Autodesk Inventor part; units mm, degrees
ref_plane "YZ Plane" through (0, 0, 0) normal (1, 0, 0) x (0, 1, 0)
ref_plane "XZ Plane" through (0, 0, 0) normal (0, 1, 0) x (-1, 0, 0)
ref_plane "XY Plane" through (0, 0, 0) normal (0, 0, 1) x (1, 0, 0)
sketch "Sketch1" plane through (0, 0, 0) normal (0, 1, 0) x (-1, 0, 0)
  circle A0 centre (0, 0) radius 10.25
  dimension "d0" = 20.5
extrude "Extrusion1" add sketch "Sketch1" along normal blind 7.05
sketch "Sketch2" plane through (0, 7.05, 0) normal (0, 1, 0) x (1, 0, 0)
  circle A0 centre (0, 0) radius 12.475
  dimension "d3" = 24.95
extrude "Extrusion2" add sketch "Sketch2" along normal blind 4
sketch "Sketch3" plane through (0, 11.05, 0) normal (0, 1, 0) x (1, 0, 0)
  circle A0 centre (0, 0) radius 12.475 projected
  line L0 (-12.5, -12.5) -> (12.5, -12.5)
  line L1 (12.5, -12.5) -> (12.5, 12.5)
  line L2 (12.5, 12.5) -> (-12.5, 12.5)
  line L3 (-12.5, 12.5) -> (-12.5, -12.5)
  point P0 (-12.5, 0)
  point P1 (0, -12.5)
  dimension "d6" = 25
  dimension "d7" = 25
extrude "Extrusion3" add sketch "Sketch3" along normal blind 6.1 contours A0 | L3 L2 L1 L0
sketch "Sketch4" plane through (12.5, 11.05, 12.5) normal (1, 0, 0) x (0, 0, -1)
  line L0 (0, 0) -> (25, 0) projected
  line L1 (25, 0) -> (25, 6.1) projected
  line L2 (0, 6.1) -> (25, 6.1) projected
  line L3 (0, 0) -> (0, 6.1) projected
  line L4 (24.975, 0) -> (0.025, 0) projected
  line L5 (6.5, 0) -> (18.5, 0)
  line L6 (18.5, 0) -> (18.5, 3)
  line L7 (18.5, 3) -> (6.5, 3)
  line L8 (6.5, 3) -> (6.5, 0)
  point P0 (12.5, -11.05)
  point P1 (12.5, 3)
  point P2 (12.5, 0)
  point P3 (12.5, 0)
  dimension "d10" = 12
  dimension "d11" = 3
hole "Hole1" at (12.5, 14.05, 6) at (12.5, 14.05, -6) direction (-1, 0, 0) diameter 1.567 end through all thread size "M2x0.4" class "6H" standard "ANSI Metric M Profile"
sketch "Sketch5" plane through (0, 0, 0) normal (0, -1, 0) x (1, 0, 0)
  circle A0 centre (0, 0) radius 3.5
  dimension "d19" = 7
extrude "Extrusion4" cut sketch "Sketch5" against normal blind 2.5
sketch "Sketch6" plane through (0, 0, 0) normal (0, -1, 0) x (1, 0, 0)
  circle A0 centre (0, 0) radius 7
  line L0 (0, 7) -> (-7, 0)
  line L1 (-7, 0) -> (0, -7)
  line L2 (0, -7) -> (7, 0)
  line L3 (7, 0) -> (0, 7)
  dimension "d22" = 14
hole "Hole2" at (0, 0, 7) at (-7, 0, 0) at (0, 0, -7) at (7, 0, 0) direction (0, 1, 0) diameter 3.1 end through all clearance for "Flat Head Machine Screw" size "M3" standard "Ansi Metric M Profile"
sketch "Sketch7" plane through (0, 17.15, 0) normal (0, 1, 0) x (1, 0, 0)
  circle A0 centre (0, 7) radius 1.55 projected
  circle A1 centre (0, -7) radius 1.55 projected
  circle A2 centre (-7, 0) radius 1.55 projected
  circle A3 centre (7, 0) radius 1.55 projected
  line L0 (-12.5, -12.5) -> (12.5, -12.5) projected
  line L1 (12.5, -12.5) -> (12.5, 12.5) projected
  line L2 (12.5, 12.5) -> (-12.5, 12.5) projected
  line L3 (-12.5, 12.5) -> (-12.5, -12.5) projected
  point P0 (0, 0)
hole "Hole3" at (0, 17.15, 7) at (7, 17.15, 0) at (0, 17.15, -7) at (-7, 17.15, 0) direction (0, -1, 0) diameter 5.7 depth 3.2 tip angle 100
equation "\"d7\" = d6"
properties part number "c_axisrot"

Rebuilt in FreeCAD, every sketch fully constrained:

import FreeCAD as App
import Part
import Sketcher
Q = App.Units.Quantity


def add_polygon(sketch, points):
    """Adds a closed chain of lines whose ends are joined by coincident constraints."""
    first, n = sketch.GeometryCount, len(points)
    for a, b in zip(points, points[1:] + points[:1]):
        sketch.addGeometry(Part.LineSegment(App.Vector(*a, 0), App.Vector(*b, 0)), False)
    for i in range(n):
        sketch.addConstraint(Sketcher.Constraint("Coincident", first + i, 2, first + (i + 1) % n, 1))

doc = App.newDocument("Part")
body = doc.addObject("PartDesign::Body", "Body")

# Sketch on XZ plane
sketch1 = doc.addObject("Sketcher::SketchObject", "Sketch")
body.addObject(sketch1)
sketch1.AttachmentSupport = (doc.XZ_Plane, [""])
sketch1.MapMode = "FlatFace"
sketch1.addGeometry(Part.Circle(App.Vector(0, 0, 0), App.Vector(0, 0, 1), 10.25), False)
sketch1.addConstraint(Sketcher.Constraint("Coincident", 0, 3, -1, 1))
sketch1.addConstraint(Sketcher.Constraint("Diameter", 0, Q("20.5 mm")))
pad1 = doc.addObject("PartDesign::Pad", "Pad")
body.addObject(pad1)
pad1.Profile = sketch1
pad1.Length = 7.05
pad1.Reversed = True

# Sketch on XZ plane
sketch2 = doc.addObject("Sketcher::SketchObject", "Sketch001")
body.addObject(sketch2)
sketch2.AttachmentSupport = (doc.XZ_Plane, [""])
sketch2.MapMode = "FlatFace"
sketch2.AttachmentOffset = App.Placement(App.Vector(0, 0, -7.05), App.Rotation())
sketch2.addGeometry(Part.Circle(App.Vector(0, 0, 0), App.Vector(0, 0, 1), 12.475), False)
sketch2.addConstraint(Sketcher.Constraint("Coincident", 0, 3, -1, 1))
sketch2.addConstraint(Sketcher.Constraint("Diameter", 0, Q("24.95 mm")))
pad2 = doc.addObject("PartDesign::Pad", "Pad001")
body.addObject(pad2)
pad2.Profile = sketch2
pad2.Length = 4
pad2.Reversed = True

# Sketch on XZ plane
sketch3 = doc.addObject("Sketcher::SketchObject", "Sketch002")
body.addObject(sketch3)
sketch3.AttachmentSupport = (doc.XZ_Plane, [""])
sketch3.MapMode = "FlatFace"
sketch3.AttachmentOffset = App.Placement(App.Vector(0, 0, -11.05), App.Rotation())
add_polygon(sketch3, [(-12.5, -12.5), (-12.5, 12.5), (12.5, 12.5), (12.5, -12.5)])  # lines 0-3
sketch3.addConstraint(Sketcher.Constraint("Vertical", 0))
sketch3.addConstraint(Sketcher.Constraint("Horizontal", 1))
sketch3.addConstraint(Sketcher.Constraint("Vertical", 2))
sketch3.addConstraint(Sketcher.Constraint("Horizontal", 3))
sketch3.addConstraint(Sketcher.Constraint("Symmetric", 0, 2, 2, 2, -1, 1))
sketch3.addConstraint(Sketcher.Constraint("Equal", 3, 0))
sketch3.addConstraint(Sketcher.Constraint("DistanceX", 1, 1, 1, 2, Q("25 mm")))
pad3 = doc.addObject("PartDesign::Pad", "Pad002")
body.addObject(pad3)
pad3.Profile = sketch3
pad3.Length = 6.1
pad3.Reversed = True

# Sketch on YZ plane
sketch4 = doc.addObject("Sketcher::SketchObject", "Sketch003")
body.addObject(sketch4)
sketch4.AttachmentSupport = (doc.YZ_Plane, [""])
sketch4.MapMode = "FlatFace"
sketch4.AttachmentOffset = App.Placement(App.Vector(0, 0, 12.5), App.Rotation())
sketch4.addGeometry(Part.Circle(App.Vector(14.05, 6, 0), App.Vector(0, 0, 1), 0.7835), False)
sketch4.addGeometry(Part.Circle(App.Vector(14.05, -6, 0), App.Vector(0, 0, 1), 0.7835), False)
sketch4.addConstraint(Sketcher.Constraint("Equal", 0, 1))
sketch4.addConstraint(Sketcher.Constraint("Symmetric", 0, 3, 1, 3, -1))
sketch4.addConstraint(Sketcher.Constraint("Diameter", 0, Q("1.567 mm")))
sketch4.addConstraint(Sketcher.Constraint("DistanceY", -1, 1, 0, 3, Q("6 mm")))
sketch4.addConstraint(Sketcher.Constraint("DistanceX", -1, 1, 0, 3, Q("14.05 mm")))
doc.recompute()
hole = doc.addObject("PartDesign::Hole", "Hole")
body.addObject(hole)
hole.Profile = sketch4
hole.ThreadType = "None"
hole.Diameter = 1.567
hole.DepthType = "ThroughAll"

# Sketch on XZ plane
sketch5 = doc.addObject("Sketcher::SketchObject", "Sketch004")
body.addObject(sketch5)
sketch5.AttachmentSupport = (doc.XZ_Plane, [""])
sketch5.MapMode = "FlatFace"
sketch5.addGeometry(Part.Circle(App.Vector(0, 0, 0), App.Vector(0, 0, 1), 3.5), False)
sketch5.addConstraint(Sketcher.Constraint("Coincident", 0, 3, -1, 1))
sketch5.addConstraint(Sketcher.Constraint("Diameter", 0, Q("7 mm")))
pocket1 = doc.addObject("PartDesign::Pocket", "Pocket")
body.addObject(pocket1)
pocket1.Profile = sketch5
pocket1.Length = 2.5

# Sketch on XZ plane
sketch6 = doc.addObject("Sketcher::SketchObject", "Sketch005")
body.addObject(sketch6)
sketch6.AttachmentSupport = (doc.XZ_Plane, [""])
sketch6.MapMode = "FlatFace"
sketch6.addGeometry(Part.Circle(App.Vector(0, 7, 0), App.Vector(0, 0, 1), 1.55), False)
sketch6.addGeometry(Part.Circle(App.Vector(-7, 0, 0), App.Vector(0, 0, 1), 1.55), False)
sketch6.addGeometry(Part.Circle(App.Vector(0, -7, 0), App.Vector(0, 0, 1), 1.55), False)
sketch6.addGeometry(Part.Circle(App.Vector(7, 0, 0), App.Vector(0, 0, 1), 1.55), False)
sketch6.addConstraint(Sketcher.Constraint("Equal", 0, 1))
sketch6.addConstraint(Sketcher.Constraint("Equal", 1, 2))
sketch6.addConstraint(Sketcher.Constraint("Equal", 2, 3))
sketch6.addConstraint(Sketcher.Constraint("Symmetric", 0, 3, 2, 3, -1, 1))
sketch6.addConstraint(Sketcher.Constraint("Symmetric", 1, 3, 3, 3, -1, 1))
sketch6.addConstraint(Sketcher.Constraint("PointOnObject", 0, 3, -2))
sketch6.addConstraint(Sketcher.Constraint("PointOnObject", 1, 3, -1))
sketch6.addConstraint(Sketcher.Constraint("Diameter", 0, Q("3.1 mm")))
sketch6.addConstraint(Sketcher.Constraint("DistanceY", -1, 1, 0, 3, Q("7 mm")))
sketch6.addConstraint(Sketcher.Constraint("DistanceX", 1, 3, -1, 1, Q("7 mm")))
doc.recompute()
hole2 = doc.addObject("PartDesign::Hole", "Hole001")
body.addObject(hole2)
hole2.Profile = sketch6
hole2.ThreadType = "None"
hole2.Diameter = 3.1
hole2.DepthType = "ThroughAll"

# Sketch on XZ plane
sketch7 = doc.addObject("Sketcher::SketchObject", "Sketch006")
body.addObject(sketch7)
sketch7.AttachmentSupport = (doc.XZ_Plane, [""])
sketch7.MapMode = "FlatFace"
sketch7.AttachmentOffset = App.Placement(App.Vector(0, 0, -17.15), App.Rotation())
sketch7.addGeometry(Part.Circle(App.Vector(0, 7, 0), App.Vector(0, 0, 1), 2.85), False)
sketch7.addGeometry(Part.Circle(App.Vector(7, 0, 0), App.Vector(0, 0, 1), 2.85), False)
sketch7.addGeometry(Part.Circle(App.Vector(0, -7, 0), App.Vector(0, 0, 1), 2.85), False)
sketch7.addGeometry(Part.Circle(App.Vector(-7, 0, 0), App.Vector(0, 0, 1), 2.85), False)
sketch7.addConstraint(Sketcher.Constraint("Equal", 0, 1))
sketch7.addConstraint(Sketcher.Constraint("Equal", 1, 2))
sketch7.addConstraint(Sketcher.Constraint("Equal", 2, 3))
sketch7.addConstraint(Sketcher.Constraint("Symmetric", 0, 3, 2, 3, -1, 1))
sketch7.addConstraint(Sketcher.Constraint("Symmetric", 1, 3, 3, 3, -1, 1))
sketch7.addConstraint(Sketcher.Constraint("PointOnObject", 0, 3, -2))
sketch7.addConstraint(Sketcher.Constraint("PointOnObject", 1, 3, -1))
sketch7.addConstraint(Sketcher.Constraint("Diameter", 0, Q("5.7 mm")))
sketch7.addConstraint(Sketcher.Constraint("DistanceY", -1, 1, 0, 3, Q("7 mm")))
sketch7.addConstraint(Sketcher.Constraint("DistanceX", -1, 1, 1, 3, Q("7 mm")))
doc.recompute()
hole3 = doc.addObject("PartDesign::Hole", "Hole002")
body.addObject(hole3)
hole3.Profile = sketch7
hole3.ThreadType = "None"
hole3.Diameter = 5.7
hole3.DepthType = "Dimension"
hole3.Depth = 3.2
hole3.DrillPoint = "Angled"
hole3.DrillPointAngle = 100
hole3.Reversed = True

doc.recompute()
